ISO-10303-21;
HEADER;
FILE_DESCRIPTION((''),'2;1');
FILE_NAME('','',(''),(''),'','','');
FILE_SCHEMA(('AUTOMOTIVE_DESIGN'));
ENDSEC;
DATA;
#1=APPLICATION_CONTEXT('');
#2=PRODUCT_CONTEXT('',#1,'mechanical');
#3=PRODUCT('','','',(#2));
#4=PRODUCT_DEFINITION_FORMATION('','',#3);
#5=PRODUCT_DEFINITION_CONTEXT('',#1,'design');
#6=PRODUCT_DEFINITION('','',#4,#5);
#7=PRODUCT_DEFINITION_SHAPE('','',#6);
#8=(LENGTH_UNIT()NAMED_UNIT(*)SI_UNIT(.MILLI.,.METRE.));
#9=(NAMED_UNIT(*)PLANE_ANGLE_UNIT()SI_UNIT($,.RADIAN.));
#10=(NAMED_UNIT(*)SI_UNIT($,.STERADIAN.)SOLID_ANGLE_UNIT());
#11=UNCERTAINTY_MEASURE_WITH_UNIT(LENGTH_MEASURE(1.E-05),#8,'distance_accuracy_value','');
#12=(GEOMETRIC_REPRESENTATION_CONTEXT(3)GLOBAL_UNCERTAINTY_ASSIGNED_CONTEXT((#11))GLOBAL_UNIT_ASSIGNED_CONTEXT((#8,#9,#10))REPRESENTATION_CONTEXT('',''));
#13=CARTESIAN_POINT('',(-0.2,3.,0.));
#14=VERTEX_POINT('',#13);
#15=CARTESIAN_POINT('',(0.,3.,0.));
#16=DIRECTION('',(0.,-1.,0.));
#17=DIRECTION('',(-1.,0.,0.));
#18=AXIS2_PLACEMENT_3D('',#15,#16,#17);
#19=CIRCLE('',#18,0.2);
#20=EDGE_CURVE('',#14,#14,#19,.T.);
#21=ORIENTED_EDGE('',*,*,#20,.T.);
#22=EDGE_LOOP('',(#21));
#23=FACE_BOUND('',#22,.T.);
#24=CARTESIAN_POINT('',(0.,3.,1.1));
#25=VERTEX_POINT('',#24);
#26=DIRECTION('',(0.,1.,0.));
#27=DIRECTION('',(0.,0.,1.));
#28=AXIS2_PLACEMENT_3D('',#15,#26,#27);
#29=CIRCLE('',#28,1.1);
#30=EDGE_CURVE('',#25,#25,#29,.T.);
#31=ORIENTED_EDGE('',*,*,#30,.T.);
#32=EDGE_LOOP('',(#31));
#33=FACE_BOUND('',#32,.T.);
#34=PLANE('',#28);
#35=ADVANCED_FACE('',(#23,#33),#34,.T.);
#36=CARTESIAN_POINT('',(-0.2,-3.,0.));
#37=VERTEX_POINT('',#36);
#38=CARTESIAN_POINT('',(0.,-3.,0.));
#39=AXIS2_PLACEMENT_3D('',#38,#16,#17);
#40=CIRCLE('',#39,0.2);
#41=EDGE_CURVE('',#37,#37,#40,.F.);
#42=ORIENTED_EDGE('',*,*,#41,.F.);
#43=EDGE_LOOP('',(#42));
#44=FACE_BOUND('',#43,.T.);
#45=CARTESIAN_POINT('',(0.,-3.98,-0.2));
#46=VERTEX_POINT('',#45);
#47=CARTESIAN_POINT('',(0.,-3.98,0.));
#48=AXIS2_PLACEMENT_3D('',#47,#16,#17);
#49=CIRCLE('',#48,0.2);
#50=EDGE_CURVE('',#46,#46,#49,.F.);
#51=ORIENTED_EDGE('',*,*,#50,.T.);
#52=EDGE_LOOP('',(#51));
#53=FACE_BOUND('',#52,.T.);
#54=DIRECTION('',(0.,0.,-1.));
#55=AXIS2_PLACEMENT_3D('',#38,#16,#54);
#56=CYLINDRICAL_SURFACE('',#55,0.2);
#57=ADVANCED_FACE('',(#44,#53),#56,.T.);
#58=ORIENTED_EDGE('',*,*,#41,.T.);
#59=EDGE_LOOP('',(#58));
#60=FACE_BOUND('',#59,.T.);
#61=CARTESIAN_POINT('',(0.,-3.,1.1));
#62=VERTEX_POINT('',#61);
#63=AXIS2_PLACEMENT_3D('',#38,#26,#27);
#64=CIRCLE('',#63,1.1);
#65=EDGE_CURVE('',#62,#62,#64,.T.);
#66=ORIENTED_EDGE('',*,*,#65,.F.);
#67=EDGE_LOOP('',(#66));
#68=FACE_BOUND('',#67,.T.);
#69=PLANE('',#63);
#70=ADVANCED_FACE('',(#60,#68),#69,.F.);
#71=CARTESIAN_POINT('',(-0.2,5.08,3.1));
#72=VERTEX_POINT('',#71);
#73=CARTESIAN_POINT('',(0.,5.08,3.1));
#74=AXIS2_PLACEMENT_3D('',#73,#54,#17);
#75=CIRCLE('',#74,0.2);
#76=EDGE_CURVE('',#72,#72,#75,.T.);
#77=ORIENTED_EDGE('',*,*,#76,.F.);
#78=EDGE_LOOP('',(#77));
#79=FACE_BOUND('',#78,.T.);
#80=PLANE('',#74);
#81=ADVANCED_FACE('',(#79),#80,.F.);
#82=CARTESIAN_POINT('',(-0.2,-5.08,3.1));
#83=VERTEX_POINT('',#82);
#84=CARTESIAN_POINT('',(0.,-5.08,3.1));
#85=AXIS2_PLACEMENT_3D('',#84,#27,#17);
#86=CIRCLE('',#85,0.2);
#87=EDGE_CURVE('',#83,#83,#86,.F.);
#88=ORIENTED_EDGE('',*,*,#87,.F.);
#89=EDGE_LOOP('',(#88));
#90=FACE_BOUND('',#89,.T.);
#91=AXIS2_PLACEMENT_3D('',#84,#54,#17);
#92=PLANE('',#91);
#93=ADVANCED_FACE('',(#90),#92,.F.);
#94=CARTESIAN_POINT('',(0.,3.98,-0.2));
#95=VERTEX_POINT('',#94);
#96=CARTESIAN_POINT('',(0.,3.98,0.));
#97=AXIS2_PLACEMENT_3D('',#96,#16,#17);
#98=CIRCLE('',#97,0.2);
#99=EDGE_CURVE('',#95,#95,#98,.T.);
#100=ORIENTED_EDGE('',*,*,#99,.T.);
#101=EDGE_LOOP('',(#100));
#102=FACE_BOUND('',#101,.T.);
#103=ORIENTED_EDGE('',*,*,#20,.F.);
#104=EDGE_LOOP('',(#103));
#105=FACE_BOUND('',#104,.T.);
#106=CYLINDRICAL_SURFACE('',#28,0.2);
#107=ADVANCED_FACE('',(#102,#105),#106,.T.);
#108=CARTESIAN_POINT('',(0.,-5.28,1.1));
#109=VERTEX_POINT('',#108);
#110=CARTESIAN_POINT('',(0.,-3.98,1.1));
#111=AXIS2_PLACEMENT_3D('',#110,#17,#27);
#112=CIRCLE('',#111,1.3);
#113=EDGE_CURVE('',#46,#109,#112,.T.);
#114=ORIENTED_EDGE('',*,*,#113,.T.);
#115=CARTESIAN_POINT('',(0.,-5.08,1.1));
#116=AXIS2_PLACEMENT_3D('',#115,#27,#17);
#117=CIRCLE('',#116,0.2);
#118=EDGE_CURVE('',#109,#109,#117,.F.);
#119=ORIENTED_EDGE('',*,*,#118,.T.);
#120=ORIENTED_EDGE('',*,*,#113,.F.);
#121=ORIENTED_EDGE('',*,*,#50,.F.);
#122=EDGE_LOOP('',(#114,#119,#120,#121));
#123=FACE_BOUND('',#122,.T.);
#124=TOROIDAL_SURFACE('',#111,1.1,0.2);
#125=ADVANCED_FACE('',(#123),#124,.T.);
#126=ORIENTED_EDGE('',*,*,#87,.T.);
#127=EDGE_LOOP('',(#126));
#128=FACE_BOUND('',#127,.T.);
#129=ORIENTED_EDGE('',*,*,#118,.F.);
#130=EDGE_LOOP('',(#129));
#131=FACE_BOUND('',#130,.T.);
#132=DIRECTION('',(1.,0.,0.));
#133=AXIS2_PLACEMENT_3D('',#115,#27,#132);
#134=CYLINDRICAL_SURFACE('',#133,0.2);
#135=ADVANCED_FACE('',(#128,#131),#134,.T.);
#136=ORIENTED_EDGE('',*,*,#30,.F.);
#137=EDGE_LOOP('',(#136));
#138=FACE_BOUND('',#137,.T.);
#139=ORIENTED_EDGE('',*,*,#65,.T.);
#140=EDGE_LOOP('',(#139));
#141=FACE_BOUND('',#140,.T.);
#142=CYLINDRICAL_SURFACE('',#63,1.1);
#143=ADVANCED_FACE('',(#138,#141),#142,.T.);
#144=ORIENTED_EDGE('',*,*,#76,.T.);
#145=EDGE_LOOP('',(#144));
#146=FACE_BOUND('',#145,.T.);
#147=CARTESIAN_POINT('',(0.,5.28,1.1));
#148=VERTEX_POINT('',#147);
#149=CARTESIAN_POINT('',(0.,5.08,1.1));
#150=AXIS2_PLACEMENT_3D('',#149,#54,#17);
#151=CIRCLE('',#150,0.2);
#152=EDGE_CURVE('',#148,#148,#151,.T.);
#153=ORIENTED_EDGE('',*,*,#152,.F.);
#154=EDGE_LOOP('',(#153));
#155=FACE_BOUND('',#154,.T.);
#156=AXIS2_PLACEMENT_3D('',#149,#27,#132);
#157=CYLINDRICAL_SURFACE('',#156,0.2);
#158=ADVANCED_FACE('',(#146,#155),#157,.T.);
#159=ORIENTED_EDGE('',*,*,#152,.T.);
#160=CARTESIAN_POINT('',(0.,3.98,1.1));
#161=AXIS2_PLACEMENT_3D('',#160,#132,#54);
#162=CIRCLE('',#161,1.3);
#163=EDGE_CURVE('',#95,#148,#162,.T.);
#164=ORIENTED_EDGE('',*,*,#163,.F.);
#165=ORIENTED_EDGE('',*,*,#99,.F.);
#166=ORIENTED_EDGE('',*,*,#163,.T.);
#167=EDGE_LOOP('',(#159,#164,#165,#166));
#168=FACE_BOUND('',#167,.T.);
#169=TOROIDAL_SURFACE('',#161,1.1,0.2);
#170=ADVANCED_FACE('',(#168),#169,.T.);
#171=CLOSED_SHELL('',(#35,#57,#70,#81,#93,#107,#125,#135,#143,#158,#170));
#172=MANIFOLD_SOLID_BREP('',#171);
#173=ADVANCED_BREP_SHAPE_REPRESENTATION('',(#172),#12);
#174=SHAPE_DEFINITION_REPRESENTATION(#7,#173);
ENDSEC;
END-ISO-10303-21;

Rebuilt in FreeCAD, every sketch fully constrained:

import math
import FreeCAD as App
import Part
import Sketcher

V = App.Vector
Q = App.Units.Quantity

doc = App.newDocument("Part")
body = doc.addObject("PartDesign::Body", "Body")

# Sketch on XZ plane
sketch1 = body.newObject("Sketcher::SketchObject", "Sketch")
sketch1.AttachmentSupport = (doc.getObject("XZ_Plane"), [""])
sketch1.MapMode = "FlatFace"
sketch1.addGeometry(Part.Circle(V(0, 0, 0), V(0, 0, 1), 1.1), False)
sketch1.addConstraint([
    Sketcher.Constraint("Coincident", 0, 3, -1, 1),
    Sketcher.Constraint("Diameter", 0, Q("2.2 mm")),
])
pad1 = body.newObject("PartDesign::Pad", "Pad")
pad1.Profile = sketch1
pad1.Type = "TwoLengths"
pad1.Length = 3
pad1.Length2 = 3
pad1.Reversed = True

# Sketch on XZ plane
sketch2 = body.newObject("Sketcher::SketchObject", "Sketch001")
sketch2.AttachmentSupport = (doc.getObject("XZ_Plane"), [""])
sketch2.MapMode = "FlatFace"
sketch2.AttachmentOffset = App.Placement(V(0, 0, -3), App.Rotation())
sketch2.addGeometry(Part.Circle(V(0, 0, 0), V(0, 0, 1), 0.2), False)
sketch2.addConstraint([
    Sketcher.Constraint("Coincident", 0, 3, -1, 1),
    Sketcher.Constraint("Diameter", 0, Q("0.4 mm")),
])

# Sketch on YZ plane
sketch3 = body.newObject("Sketcher::SketchObject", "Sketch002")
sketch3.AttachmentSupport = (doc.getObject("YZ_Plane"), [""])
sketch3.MapMode = "FlatFace"
sketch3.addGeometry([
    Part.LineSegment(V(3, 0, 0), V(4, 0, 0)),
    Part.ArcOfCircle(Part.Circle(V(4, 1.1, 0), V(0, 0, 1), 1.1), math.radians(-90), math.radians(0)),
    Part.LineSegment(V(5.1, 1.1, 0), V(5.1, 3.1, 0)),
], False)
sketch3.addConstraint([
    Sketcher.Constraint("Tangent", 0, 2, 1, 1),
    Sketcher.Constraint("Tangent", 1, 2, 2, 1),
    Sketcher.Constraint("Horizontal", 0),
    Sketcher.Constraint("Vertical", 2),
    Sketcher.Constraint("PointOnObject", 0, 1, -1),
    Sketcher.Constraint("Radius", 1, Q("1.1 mm")),
    Sketcher.Constraint("DistanceY", 2, 1, 2, 2, Q("2 mm")),
    Sketcher.Constraint("DistanceX", -1, 1, 0, 1, Q("3 mm")),
    Sketcher.Constraint("DistanceX", 0, 1, 0, 2, Q("0.98 mm")),
])
doc.recompute()

additivepipe = body.newObject("PartDesign::AdditivePipe", "AdditivePipe")
additivepipe.Profile = sketch2
additivepipe.Spine = (sketch3, ["Edge1", "Edge2", "Edge3"])
doc.recompute()

mirrored = body.newObject("PartDesign::Mirrored", "Mirrored")
mirrored.Originals = [additivepipe]
mirrored.MirrorPlane = (doc.getObject("XZ_Plane"), [""])
body.Tip = mirrored

doc.recompute()
